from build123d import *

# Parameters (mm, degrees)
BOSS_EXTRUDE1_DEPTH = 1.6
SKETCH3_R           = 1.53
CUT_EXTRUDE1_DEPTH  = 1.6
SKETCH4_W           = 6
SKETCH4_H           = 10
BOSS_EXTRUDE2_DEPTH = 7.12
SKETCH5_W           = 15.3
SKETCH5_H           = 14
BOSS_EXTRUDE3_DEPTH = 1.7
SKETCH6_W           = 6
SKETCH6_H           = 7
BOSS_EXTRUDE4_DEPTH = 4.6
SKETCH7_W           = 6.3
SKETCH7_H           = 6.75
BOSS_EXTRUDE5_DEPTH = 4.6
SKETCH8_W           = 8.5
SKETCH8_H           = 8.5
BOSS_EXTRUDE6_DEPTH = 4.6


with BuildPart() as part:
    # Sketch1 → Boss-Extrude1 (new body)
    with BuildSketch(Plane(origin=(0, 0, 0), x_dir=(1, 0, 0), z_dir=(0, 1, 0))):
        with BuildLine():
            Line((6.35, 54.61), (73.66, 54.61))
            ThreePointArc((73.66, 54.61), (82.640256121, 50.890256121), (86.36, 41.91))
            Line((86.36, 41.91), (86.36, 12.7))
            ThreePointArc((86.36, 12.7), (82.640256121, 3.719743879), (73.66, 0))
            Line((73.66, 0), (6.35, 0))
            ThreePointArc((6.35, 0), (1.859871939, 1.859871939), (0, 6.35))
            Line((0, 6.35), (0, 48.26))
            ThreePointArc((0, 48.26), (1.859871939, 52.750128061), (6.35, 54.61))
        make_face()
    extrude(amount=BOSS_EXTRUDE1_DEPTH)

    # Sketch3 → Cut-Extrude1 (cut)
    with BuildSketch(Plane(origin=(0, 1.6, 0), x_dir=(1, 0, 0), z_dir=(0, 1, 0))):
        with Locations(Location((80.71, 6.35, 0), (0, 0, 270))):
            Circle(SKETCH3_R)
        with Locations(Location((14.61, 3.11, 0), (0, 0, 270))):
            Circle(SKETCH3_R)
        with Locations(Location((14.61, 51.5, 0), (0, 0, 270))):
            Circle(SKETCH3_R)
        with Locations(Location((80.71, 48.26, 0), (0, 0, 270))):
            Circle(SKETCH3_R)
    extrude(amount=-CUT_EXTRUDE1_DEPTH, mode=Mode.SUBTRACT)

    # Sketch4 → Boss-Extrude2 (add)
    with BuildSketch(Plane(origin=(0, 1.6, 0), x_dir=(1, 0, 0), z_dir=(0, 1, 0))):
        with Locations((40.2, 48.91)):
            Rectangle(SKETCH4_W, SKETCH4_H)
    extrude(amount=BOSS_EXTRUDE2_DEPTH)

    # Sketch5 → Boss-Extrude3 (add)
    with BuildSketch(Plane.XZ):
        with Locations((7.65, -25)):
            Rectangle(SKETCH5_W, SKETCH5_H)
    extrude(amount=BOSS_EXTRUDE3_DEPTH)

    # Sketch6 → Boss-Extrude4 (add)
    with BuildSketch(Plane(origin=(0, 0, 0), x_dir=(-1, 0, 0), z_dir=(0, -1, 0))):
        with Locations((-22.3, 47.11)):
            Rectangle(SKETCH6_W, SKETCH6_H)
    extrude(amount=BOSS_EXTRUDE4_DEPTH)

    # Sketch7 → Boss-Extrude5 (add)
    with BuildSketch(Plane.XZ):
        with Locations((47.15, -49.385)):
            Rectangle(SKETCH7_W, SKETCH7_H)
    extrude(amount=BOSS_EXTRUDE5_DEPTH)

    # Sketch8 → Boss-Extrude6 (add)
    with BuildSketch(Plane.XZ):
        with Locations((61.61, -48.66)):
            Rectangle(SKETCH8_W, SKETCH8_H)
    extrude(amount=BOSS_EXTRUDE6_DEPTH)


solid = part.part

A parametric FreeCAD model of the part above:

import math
import FreeCAD as App
import Part
import Sketcher

doc = App.newDocument("Part")
params = doc.addObject("Spreadsheet::Sheet", "Params")
for row, (alias, value) in enumerate([
    ("sketch1_radius", "12.7 mm"),
    ("sketch1_radius2", "6.35 mm"),
    ("sketch1_width", "67.31 mm"),
    ("sketch1_height", "41.91 mm"),
    ("pad1_length", "1.6 mm"),
    ("sketch2_diameter", "3.06 mm"),
    ("pocket1_length", "1.6 mm"),
    ("sketch3_width", "6 mm"),
    ("sketch3_height", "10 mm"),
    ("pad2_length", "7.12 mm"),
    ("sketch4_height", "14 mm"),
    ("sketch4_width", "15.3 mm"),
    ("pad3_length", "1.7 mm"),
    ("sketch5_width", "6 mm"),
    ("sketch5_height", "7 mm"),
    ("pad4_length", "4.6 mm"),
    ("sketch6_width", "6.3 mm"),
    ("sketch6_height", "6.75 mm"),
    ("pad5_length", "4.6 mm"),
    ("sketch7_width", "8.5 mm"),
    ("pad6_length", "4.6 mm"),
], start=1):
    params.set(f"A{row}", alias)
    params.set(f"B{row}", "=" + value)
    params.setAlias(f"B{row}", alias)

body = doc.addObject("PartDesign::Body", "Body")

sketch1 = doc.addObject("Sketcher::SketchObject", "Sketch")
body.addObject(sketch1)
sketch1.AttachmentSupport = (doc.XZ_Plane, [""])
sketch1.MapMode = "FlatFace"
sketch1.addGeometry(Part.LineSegment(App.Vector(73.66, -54.61, 0), App.Vector(6.35, -54.61, 0)), False)
sketch1.addGeometry(Part.ArcOfCircle(Part.Circle(App.Vector(6.35, -48.26, 0), App.Vector(0, 0, 1), 6.35), math.radians(180), math.radians(270)), False)
sketch1.addGeometry(Part.LineSegment(App.Vector(0, -48.26, 0), App.Vector(0, -6.35, 0)), False)
sketch1.addGeometry(Part.ArcOfCircle(Part.Circle(App.Vector(6.35, -6.35, 0), App.Vector(0, 0, 1), 6.35), math.radians(90), math.radians(180)), False)
sketch1.addGeometry(Part.LineSegment(App.Vector(6.35, 0, 0), App.Vector(73.66, 0, 0)), False)
sketch1.addGeometry(Part.ArcOfCircle(Part.Circle(App.Vector(73.66, -12.7, 0), App.Vector(0, 0, 1), 12.7), math.radians(0), math.radians(90)), False)
sketch1.addGeometry(Part.LineSegment(App.Vector(86.36, -12.7, 0), App.Vector(86.36, -41.91, 0)), False)
sketch1.addGeometry(Part.ArcOfCircle(Part.Circle(App.Vector(73.66, -41.91, 0), App.Vector(0, 0, 1), 12.7), math.radians(-90), math.radians(0)), False)
sketch1.addConstraint(Sketcher.Constraint("Tangent", 0, 2, 1, 2))
sketch1.addConstraint(Sketcher.Constraint("Tangent", 1, 1, 2, 1))
sketch1.addConstraint(Sketcher.Constraint("Tangent", 2, 2, 3, 2))
sketch1.addConstraint(Sketcher.Constraint("Tangent", 3, 1, 4, 1))
sketch1.addConstraint(Sketcher.Constraint("Tangent", 4, 2, 5, 2))
sketch1.addConstraint(Sketcher.Constraint("Tangent", 5, 1, 6, 1))
sketch1.addConstraint(Sketcher.Constraint("Tangent", 6, 2, 7, 2))
sketch1.addConstraint(Sketcher.Constraint("Tangent", 7, 1, 0, 1))
sketch1.addConstraint(Sketcher.Constraint("Horizontal", 0))
sketch1.addConstraint(Sketcher.Constraint("Vertical", 2))
sketch1.addConstraint(Sketcher.Constraint("Horizontal", 4))
sketch1.addConstraint(Sketcher.Constraint("Vertical", 6))
sketch1.addConstraint(Sketcher.Constraint("Equal", 1, 3))
sketch1.addConstraint(Sketcher.Constraint("Equal", 5, 7))
sketch1.addConstraint(Sketcher.Constraint("PointOnObject", 1, 1, -2))
sketch1.addConstraint(Sketcher.Constraint("PointOnObject", 3, 1, -1))
sketch1.addConstraint(Sketcher.Constraint("Radius", 5, 12.7))
sketch1.addConstraint(Sketcher.Constraint("Radius", 1, 6.35))
sketch1.addConstraint(Sketcher.Constraint("DistanceX", 0, 2, 0, 1, 67.31))
sketch1.addConstraint(Sketcher.Constraint("DistanceY", 2, 1, 2, 2, 41.91))
sketch1.setExpression("Constraints[16]", "Params.sketch1_radius")
sketch1.setExpression("Constraints[17]", "Params.sketch1_radius2")
sketch1.setExpression("Constraints[18]", "Params.sketch1_width")
sketch1.setExpression("Constraints[19]", "Params.sketch1_height")
pad1 = doc.addObject("PartDesign::Pad", "Pad")
body.addObject(pad1)
pad1.Profile = sketch1
pad1.setExpression("Length", "Params.pad1_length")
pad1.Reversed = True

sketch2 = doc.addObject("Sketcher::SketchObject", "Sketch001")
body.addObject(sketch2)
sketch2.AttachmentSupport = (doc.XZ_Plane, [""])
sketch2.MapMode = "FlatFace"
sketch2.AttachmentOffset = App.Placement(App.Vector(0, 0, -1.6), App.Rotation())
sketch2.addGeometry(Part.Circle(App.Vector(80.71, -6.35, 0), App.Vector(0, 0, 1), 1.53), False)
sketch2.addGeometry(Part.Circle(App.Vector(14.61, -3.11, 0), App.Vector(0, 0, 1), 1.53), False)
sketch2.addGeometry(Part.Circle(App.Vector(14.61, -51.5, 0), App.Vector(0, 0, 1), 1.53), False)
sketch2.addGeometry(Part.Circle(App.Vector(80.71, -48.26, 0), App.Vector(0, 0, 1), 1.53), False)
sketch2.addConstraint(Sketcher.Constraint("Equal", 0, 1))
sketch2.addConstraint(Sketcher.Constraint("Equal", 1, 2))
sketch2.addConstraint(Sketcher.Constraint("Equal", 2, 3))
sketch2.addConstraint(Sketcher.Constraint("Vertical", 1, 3, 2, 3))
sketch2.addConstraint(Sketcher.Constraint("Vertical", 0, 3, 3, 3))
sketch2.addConstraint(Sketcher.Constraint("Diameter", 0, 3.06))
sketch2.addConstraint(Sketcher.Constraint("DistanceY", 2, 3, -1, 1, 51.5))
sketch2.addConstraint(Sketcher.Constraint("DistanceX", 1, 3, 0, 3, 66.1))
sketch2.addConstraint(Sketcher.Constraint("DistanceX", -1, 1, 0, 3, 80.71))
sketch2.addConstraint(Sketcher.Constraint("DistanceY", 0, 3, -1, 1, 6.35))
sketch2.addConstraint(Sketcher.Constraint("DistanceY", 1, 3, -1, 1, 3.11))
sketch2.addConstraint(Sketcher.Constraint("DistanceY", 3, 3, -1, 1, 48.26))
sketch2.setExpression("Constraints[5]", "Params.sketch2_diameter")
pocket1 = doc.addObject("PartDesign::Pocket", "Pocket")
body.addObject(pocket1)
pocket1.Profile = sketch2
pocket1.setExpression("Length", "Params.pocket1_length")
pocket1.Reversed = True

sketch3 = doc.addObject("Sketcher::SketchObject", "Sketch002")
body.addObject(sketch3)
sketch3.AttachmentSupport = (doc.XZ_Plane, [""])
sketch3.MapMode = "FlatFace"
sketch3.AttachmentOffset = App.Placement(App.Vector(0, 0, -1.6), App.Rotation())
sketch3.addGeometry(Part.LineSegment(App.Vector(37.2, -53.91, 0), App.Vector(37.2, -43.91, 0)), False)
sketch3.addGeometry(Part.LineSegment(App.Vector(37.2, -43.91, 0), App.Vector(43.2, -43.91, 0)), False)
sketch3.addGeometry(Part.LineSegment(App.Vector(43.2, -43.91, 0), App.Vector(43.2, -53.91, 0)), False)
sketch3.addGeometry(Part.LineSegment(App.Vector(43.2, -53.91, 0), App.Vector(37.2, -53.91, 0)), False)
sketch3.addConstraint(Sketcher.Constraint("Coincident", 0, 2, 1, 1))
sketch3.addConstraint(Sketcher.Constraint("Coincident", 1, 2, 2, 1))
sketch3.addConstraint(Sketcher.Constraint("Coincident", 2, 2, 3, 1))
sketch3.addConstraint(Sketcher.Constraint("Coincident", 3, 2, 0, 1))
sketch3.addConstraint(Sketcher.Constraint("Vertical", 0))
sketch3.addConstraint(Sketcher.Constraint("Horizontal", 1))
sketch3.addConstraint(Sketcher.Constraint("Vertical", 2))
sketch3.addConstraint(Sketcher.Constraint("Horizontal", 3))
sketch3.addConstraint(Sketcher.Constraint("DistanceX", 1, 1, 1, 2, 6.0))
sketch3.addConstraint(Sketcher.Constraint("DistanceY", 0, 1, 0, 2, 10.0))
sketch3.addConstraint(Sketcher.Constraint("DistanceX", -1, 1, 0, 2, 37.2))
sketch3.addConstraint(Sketcher.Constraint("DistanceY", 0, 2, -1, 1, 43.91))
sketch3.setExpression("Constraints[8]", "Params.sketch3_width")
sketch3.setExpression("Constraints[9]", "Params.sketch3_height")
pad2 = doc.addObject("PartDesign::Pad", "Pad001")
body.addObject(pad2)
pad2.Profile = sketch3
pad2.setExpression("Length", "Params.pad2_length")
pad2.Reversed = True

sketch4 = doc.addObject("Sketcher::SketchObject", "Sketch003")
body.addObject(sketch4)
sketch4.AttachmentSupport = (doc.XZ_Plane, [""])
sketch4.MapMode = "FlatFace"
sketch4.addGeometry(Part.LineSegment(App.Vector(0, -18, 0), App.Vector(0, -32, 0)), False)
sketch4.addGeometry(Part.LineSegment(App.Vector(0, -32, 0), App.Vector(15.3, -32, 0)), False)
sketch4.addGeometry(Part.LineSegment(App.Vector(15.3, -32, 0), App.Vector(15.3, -18, 0)), False)
sketch4.addGeometry(Part.LineSegment(App.Vector(15.3, -18, 0), App.Vector(0, -18, 0)), False)
sketch4.addConstraint(Sketcher.Constraint("Coincident", 0, 2, 1, 1))
sketch4.addConstraint(Sketcher.Constraint("Coincident", 1, 2, 2, 1))
sketch4.addConstraint(Sketcher.Constraint("Coincident", 2, 2, 3, 1))
sketch4.addConstraint(Sketcher.Constraint("Coincident", 3, 2, 0, 1))
sketch4.addConstraint(Sketcher.Constraint("Vertical", 0))
sketch4.addConstraint(Sketcher.Constraint("Horizontal", 1))
sketch4.addConstraint(Sketcher.Constraint("Vertical", 2))
sketch4.addConstraint(Sketcher.Constraint("Horizontal", 3))
sketch4.addConstraint(Sketcher.Constraint("PointOnObject", 0, 2, -2))
sketch4.addConstraint(Sketcher.Constraint("DistanceY", 0, 2, 0, 1, 14.0))
sketch4.addConstraint(Sketcher.Constraint("DistanceX", 1, 1, 1, 2, 15.3))
sketch4.addConstraint(Sketcher.Constraint("DistanceY", 0, 2, -1, 1, 32.0))
sketch4.setExpression("Constraints[9]", "Params.sketch4_height")
sketch4.setExpression("Constraints[10]", "Params.sketch4_width")
pad3 = doc.addObject("PartDesign::Pad", "Pad002")
body.addObject(pad3)
pad3.Profile = sketch4
pad3.setExpression("Length", "Params.pad3_length")

sketch5 = doc.addObject("Sketcher::SketchObject", "Sketch004")
body.addObject(sketch5)
sketch5.AttachmentSupport = (doc.XZ_Plane, [""])
sketch5.MapMode = "FlatFace"
sketch5.addGeometry(Part.LineSegment(App.Vector(25.3, -50.61, 0), App.Vector(25.3, -43.61, 0)), False)
sketch5.addGeometry(Part.LineSegment(App.Vector(25.3, -43.61, 0), App.Vector(19.3, -43.61, 0)), False)
sketch5.addGeometry(Part.LineSegment(App.Vector(19.3, -43.61, 0), App.Vector(19.3, -50.61, 0)), False)
sketch5.addGeometry(Part.LineSegment(App.Vector(19.3, -50.61, 0), App.Vector(25.3, -50.61, 0)), False)
sketch5.addConstraint(Sketcher.Constraint("Coincident", 0, 2, 1, 1))
sketch5.addConstraint(Sketcher.Constraint("Coincident", 1, 2, 2, 1))
sketch5.addConstraint(Sketcher.Constraint("Coincident", 2, 2, 3, 1))
sketch5.addConstraint(Sketcher.Constraint("Coincident", 3, 2, 0, 1))
sketch5.addConstraint(Sketcher.Constraint("Vertical", 0))
sketch5.addConstraint(Sketcher.Constraint("Horizontal", 1))
sketch5.addConstraint(Sketcher.Constraint("Vertical", 2))
sketch5.addConstraint(Sketcher.Constraint("Horizontal", 3))
sketch5.addConstraint(Sketcher.Constraint("DistanceX", 1, 2, 1, 1, 6.0))
sketch5.addConstraint(Sketcher.Constraint("DistanceY", 0, 1, 0, 2, 7.0))
sketch5.addConstraint(Sketcher.Constraint("DistanceX", -1, 1, 0, 2, 25.3))
sketch5.addConstraint(Sketcher.Constraint("DistanceY", 0, 2, -1, 1, 43.61))
sketch5.setExpression("Constraints[8]", "Params.sketch5_width")
sketch5.setExpression("Constraints[9]", "Params.sketch5_height")
pad4 = doc.addObject("PartDesign::Pad", "Pad003")
body.addObject(pad4)
pad4.Profile = sketch5
pad4.setExpression("Length", "Params.pad4_length")

sketch6 = doc.addObject("Sketcher::SketchObject", "Sketch005")
body.addObject(sketch6)
sketch6.AttachmentSupport = (doc.XZ_Plane, [""])
sketch6.MapMode = "FlatFace"
sketch6.addGeometry(Part.LineSegment(App.Vector(44, -46.01, 0), App.Vector(44, -52.76, 0)), False)
sketch6.addGeometry(Part.LineSegment(App.Vector(44, -52.76, 0), App.Vector(50.3, -52.76, 0)), False)
sketch6.addGeometry(Part.LineSegment(App.Vector(50.3, -52.76, 0), App.Vector(50.3, -46.01, 0)), False)
sketch6.addGeometry(Part.LineSegment(App.Vector(50.3, -46.01, 0), App.Vector(44, -46.01, 0)), False)
sketch6.addConstraint(Sketcher.Constraint("Coincident", 0, 2, 1, 1))
sketch6.addConstraint(Sketcher.Constraint("Coincident", 1, 2, 2, 1))
sketch6.addConstraint(Sketcher.Constraint("Coincident", 2, 2, 3, 1))
sketch6.addConstraint(Sketcher.Constraint("Coincident", 3, 2, 0, 1))
sketch6.addConstraint(Sketcher.Constraint("Vertical", 0))
sketch6.addConstraint(Sketcher.Constraint("Horizontal", 1))
sketch6.addConstraint(Sketcher.Constraint("Vertical", 2))
sketch6.addConstraint(Sketcher.Constraint("Horizontal", 3))
sketch6.addConstraint(Sketcher.Constraint("DistanceX", 1, 1, 1, 2, 6.3))
sketch6.addConstraint(Sketcher.Constraint("DistanceX", -1, 1, 0, 2, 44.0))
sketch6.addConstraint(Sketcher.Constraint("DistanceY", 0, 2, 0, 1, 6.75))
sketch6.addConstraint(Sketcher.Constraint("DistanceY", 0, 2, -1, 1, 52.76))
sketch6.setExpression("Constraints[8]", "Params.sketch6_width")
sketch6.setExpression("Constraints[10]", "Params.sketch6_height")
pad5 = doc.addObject("PartDesign::Pad", "Pad004")
body.addObject(pad5)
pad5.Profile = sketch6
pad5.setExpression("Length", "Params.pad5_length")

sketch7 = doc.addObject("Sketcher::SketchObject", "Sketch006")
body.addObject(sketch7)
sketch7.AttachmentSupport = (doc.XZ_Plane, [""])
sketch7.MapMode = "FlatFace"
sketch7.addGeometry(Part.LineSegment(App.Vector(57.36, -44.41, 0), App.Vector(57.36, -52.91, 0)), False)
sketch7.addGeometry(Part.LineSegment(App.Vector(57.36, -52.91, 0), App.Vector(65.86, -52.91, 0)), False)
sketch7.addGeometry(Part.LineSegment(App.Vector(65.86, -52.91, 0), App.Vector(65.86, -44.41, 0)), False)
sketch7.addGeometry(Part.LineSegment(App.Vector(65.86, -44.41, 0), App.Vector(57.36, -44.41, 0)), False)
sketch7.addConstraint(Sketcher.Constraint("Coincident", 0, 2, 1, 1))
sketch7.addConstraint(Sketcher.Constraint("Coincident", 1, 2, 2, 1))
sketch7.addConstraint(Sketcher.Constraint("Coincident", 2, 2, 3, 1))
sketch7.addConstraint(Sketcher.Constraint("Coincident", 3, 2, 0, 1))
sketch7.addConstraint(Sketcher.Constraint("Vertical", 0))
sketch7.addConstraint(Sketcher.Constraint("Horizontal", 1))
sketch7.addConstraint(Sketcher.Constraint("Vertical", 2))
sketch7.addConstraint(Sketcher.Constraint("Horizontal", 3))
sketch7.addConstraint(Sketcher.Constraint("Equal", 3, 0))
sketch7.addConstraint(Sketcher.Constraint("DistanceX", 1, 1, 1, 2, 8.5))
sketch7.addConstraint(Sketcher.Constraint("DistanceX", -1, 1, 0, 2, 57.36))
sketch7.addConstraint(Sketcher.Constraint("DistanceY", 0, 2, -1, 1, 52.91))
sketch7.setExpression("Constraints[9]", "Params.sketch7_width")
pad6 = doc.addObject("PartDesign::Pad", "Pad005")
body.addObject(pad6)
pad6.Profile = sketch7
pad6.setExpression("Length", "Params.pad6_length")

doc.recompute()
